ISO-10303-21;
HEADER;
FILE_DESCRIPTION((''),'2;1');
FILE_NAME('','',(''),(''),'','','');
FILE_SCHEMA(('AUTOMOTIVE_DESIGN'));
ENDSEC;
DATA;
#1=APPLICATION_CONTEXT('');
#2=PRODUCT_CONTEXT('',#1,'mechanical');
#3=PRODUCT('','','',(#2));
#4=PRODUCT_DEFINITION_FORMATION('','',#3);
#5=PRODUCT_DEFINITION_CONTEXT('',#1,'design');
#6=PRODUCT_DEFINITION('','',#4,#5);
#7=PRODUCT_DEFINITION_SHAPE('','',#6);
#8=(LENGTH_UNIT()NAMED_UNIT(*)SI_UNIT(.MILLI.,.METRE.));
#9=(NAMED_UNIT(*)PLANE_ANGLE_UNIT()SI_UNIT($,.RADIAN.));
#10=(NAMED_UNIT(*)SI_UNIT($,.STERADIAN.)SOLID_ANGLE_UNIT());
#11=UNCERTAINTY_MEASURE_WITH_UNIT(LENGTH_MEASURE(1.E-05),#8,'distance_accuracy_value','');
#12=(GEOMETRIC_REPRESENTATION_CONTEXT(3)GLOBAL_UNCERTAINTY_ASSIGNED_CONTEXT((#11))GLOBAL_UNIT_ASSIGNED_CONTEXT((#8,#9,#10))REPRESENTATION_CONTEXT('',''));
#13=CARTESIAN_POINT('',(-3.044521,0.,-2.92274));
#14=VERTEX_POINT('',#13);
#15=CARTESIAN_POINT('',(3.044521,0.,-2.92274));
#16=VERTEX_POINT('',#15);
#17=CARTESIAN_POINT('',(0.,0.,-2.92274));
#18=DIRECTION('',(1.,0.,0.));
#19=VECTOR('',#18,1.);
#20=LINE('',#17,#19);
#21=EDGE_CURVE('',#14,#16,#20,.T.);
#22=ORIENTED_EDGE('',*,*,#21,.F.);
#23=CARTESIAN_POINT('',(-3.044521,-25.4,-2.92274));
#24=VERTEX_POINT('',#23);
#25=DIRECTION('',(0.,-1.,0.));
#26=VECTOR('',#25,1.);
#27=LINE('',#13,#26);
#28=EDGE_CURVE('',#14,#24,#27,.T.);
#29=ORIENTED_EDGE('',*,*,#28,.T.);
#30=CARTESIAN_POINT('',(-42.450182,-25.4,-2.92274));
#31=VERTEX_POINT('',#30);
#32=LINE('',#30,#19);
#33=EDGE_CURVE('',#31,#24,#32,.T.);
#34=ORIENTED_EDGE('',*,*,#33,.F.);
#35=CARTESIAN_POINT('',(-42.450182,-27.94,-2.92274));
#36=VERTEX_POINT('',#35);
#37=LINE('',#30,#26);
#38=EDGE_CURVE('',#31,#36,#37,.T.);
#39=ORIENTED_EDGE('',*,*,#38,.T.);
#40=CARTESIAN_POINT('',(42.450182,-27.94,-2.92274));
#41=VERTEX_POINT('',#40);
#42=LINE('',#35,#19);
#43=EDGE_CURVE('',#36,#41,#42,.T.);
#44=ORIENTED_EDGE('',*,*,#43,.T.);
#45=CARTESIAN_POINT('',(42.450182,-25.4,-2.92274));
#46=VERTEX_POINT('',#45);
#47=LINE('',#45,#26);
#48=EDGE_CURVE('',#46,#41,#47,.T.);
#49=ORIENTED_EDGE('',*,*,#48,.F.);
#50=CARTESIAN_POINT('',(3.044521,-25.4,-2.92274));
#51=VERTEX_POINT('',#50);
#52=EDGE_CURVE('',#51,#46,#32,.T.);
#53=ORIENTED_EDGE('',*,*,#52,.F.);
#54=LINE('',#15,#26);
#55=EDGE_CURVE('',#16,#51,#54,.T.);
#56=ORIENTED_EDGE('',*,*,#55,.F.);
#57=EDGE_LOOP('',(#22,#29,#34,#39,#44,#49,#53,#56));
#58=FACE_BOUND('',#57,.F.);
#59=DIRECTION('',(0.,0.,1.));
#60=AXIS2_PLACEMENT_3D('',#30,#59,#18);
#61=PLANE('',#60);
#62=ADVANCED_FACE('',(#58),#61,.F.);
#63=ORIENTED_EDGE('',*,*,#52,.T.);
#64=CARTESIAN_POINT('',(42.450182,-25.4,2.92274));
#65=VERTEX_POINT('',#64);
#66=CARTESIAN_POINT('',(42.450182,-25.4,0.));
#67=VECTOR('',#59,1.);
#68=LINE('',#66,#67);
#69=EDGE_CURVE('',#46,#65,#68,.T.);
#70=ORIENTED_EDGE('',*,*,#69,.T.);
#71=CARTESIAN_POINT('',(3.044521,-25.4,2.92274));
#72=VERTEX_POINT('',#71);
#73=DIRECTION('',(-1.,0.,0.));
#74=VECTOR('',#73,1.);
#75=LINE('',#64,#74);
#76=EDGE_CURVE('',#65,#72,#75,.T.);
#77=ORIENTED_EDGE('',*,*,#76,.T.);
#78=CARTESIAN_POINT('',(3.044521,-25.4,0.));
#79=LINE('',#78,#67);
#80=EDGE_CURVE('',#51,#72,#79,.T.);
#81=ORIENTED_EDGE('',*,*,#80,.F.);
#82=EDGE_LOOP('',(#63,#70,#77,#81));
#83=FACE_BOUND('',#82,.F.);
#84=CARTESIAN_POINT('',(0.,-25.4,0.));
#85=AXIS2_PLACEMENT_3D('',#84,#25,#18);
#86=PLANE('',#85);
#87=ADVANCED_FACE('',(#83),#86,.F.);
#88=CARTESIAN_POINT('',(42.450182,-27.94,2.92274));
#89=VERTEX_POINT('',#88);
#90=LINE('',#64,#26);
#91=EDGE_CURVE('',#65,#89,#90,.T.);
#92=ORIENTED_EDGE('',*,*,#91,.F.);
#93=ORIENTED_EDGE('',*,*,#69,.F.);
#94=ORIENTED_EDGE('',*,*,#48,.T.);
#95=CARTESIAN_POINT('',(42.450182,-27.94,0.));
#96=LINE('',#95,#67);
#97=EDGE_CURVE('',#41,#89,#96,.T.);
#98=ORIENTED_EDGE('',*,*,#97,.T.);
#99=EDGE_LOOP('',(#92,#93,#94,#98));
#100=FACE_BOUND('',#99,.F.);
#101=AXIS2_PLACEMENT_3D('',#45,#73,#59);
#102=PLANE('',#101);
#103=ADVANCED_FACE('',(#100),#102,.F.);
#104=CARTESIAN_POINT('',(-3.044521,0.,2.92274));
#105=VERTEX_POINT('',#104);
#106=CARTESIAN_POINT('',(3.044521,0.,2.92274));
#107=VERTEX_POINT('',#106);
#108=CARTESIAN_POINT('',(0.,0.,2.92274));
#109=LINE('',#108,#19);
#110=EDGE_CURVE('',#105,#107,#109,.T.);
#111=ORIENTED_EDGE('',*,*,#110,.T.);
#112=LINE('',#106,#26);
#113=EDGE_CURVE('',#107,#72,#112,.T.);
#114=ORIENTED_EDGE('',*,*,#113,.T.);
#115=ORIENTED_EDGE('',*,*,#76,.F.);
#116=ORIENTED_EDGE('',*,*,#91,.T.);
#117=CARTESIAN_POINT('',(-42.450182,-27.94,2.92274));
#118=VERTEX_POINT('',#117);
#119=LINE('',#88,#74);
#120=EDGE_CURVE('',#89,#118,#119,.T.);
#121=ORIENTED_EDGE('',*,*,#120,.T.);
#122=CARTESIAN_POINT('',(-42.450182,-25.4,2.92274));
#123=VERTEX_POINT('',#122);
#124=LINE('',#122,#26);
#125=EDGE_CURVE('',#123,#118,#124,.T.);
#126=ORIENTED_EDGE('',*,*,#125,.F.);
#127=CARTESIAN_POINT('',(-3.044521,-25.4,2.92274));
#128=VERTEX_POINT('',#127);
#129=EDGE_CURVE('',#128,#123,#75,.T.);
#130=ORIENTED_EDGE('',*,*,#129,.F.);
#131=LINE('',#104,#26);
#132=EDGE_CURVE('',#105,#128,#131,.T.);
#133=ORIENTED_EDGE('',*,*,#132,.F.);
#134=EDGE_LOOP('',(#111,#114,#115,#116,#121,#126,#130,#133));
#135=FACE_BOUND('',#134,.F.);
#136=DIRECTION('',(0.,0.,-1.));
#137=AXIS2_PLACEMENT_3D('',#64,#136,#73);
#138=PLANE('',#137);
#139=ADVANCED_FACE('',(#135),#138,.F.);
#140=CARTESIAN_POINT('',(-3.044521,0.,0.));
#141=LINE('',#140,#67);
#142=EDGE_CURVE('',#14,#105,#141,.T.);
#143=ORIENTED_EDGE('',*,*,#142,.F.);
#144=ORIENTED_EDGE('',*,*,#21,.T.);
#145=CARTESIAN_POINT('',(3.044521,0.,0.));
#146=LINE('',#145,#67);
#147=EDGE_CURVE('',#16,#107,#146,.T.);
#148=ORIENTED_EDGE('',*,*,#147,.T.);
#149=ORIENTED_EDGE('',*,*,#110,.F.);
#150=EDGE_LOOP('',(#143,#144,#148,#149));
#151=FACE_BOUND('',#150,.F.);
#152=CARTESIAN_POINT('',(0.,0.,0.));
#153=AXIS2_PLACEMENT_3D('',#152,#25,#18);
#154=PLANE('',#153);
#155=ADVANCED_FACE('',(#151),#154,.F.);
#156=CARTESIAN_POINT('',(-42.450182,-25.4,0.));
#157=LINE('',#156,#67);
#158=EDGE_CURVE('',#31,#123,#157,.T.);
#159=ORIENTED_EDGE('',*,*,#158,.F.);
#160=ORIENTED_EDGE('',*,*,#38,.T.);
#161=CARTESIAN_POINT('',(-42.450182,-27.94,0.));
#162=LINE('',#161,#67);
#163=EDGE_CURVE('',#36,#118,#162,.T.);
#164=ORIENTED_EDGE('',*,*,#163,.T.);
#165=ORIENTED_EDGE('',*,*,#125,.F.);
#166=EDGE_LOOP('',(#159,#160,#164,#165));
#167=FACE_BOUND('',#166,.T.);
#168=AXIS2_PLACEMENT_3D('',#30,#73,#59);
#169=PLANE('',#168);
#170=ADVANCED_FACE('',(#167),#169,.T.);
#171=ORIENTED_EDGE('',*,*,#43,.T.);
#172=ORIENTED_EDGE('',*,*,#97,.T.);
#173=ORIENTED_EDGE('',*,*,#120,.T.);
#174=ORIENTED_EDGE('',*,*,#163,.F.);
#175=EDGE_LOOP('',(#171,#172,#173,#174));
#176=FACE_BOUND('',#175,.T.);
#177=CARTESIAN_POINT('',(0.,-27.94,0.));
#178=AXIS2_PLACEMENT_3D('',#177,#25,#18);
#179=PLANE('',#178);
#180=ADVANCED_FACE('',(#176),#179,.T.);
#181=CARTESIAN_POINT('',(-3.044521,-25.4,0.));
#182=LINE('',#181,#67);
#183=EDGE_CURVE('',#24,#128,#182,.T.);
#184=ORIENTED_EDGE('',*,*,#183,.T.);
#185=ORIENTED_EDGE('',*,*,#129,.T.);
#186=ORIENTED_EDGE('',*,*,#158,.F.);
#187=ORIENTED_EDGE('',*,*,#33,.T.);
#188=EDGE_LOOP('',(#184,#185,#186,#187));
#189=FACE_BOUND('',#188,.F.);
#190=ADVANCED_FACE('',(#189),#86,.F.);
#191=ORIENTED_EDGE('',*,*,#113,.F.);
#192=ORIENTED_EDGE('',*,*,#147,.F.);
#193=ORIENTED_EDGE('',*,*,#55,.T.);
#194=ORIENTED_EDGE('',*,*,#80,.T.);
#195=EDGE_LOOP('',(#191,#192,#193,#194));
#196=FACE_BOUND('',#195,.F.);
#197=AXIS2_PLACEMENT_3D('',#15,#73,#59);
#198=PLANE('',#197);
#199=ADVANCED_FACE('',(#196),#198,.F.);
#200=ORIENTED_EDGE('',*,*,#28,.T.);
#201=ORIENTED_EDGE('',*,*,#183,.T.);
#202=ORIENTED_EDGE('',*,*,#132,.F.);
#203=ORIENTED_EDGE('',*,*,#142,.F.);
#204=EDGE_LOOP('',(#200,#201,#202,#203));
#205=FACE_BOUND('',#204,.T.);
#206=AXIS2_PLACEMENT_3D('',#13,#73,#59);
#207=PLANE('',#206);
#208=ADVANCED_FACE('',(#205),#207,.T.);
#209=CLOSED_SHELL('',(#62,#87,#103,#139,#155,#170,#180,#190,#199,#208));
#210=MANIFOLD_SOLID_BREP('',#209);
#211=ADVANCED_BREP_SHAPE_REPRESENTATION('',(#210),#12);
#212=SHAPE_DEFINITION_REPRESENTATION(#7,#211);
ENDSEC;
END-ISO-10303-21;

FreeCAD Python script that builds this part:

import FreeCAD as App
import Part
import Sketcher

V = App.Vector
Q = App.Units.Quantity

doc = App.newDocument("Part")
body = doc.addObject("PartDesign::Body", "Body")

# Sketch on XZ plane
sketch1 = body.newObject("Sketcher::SketchObject", "Sketch")
sketch1.AttachmentSupport = (doc.getObject("XZ_Plane"), [""])
sketch1.MapMode = "FlatFace"
sketch1.addGeometry(Part.LineSegment(V(-3, 3, 0), V(-3, -3, 0)), False)
sketch1.addGeometry(Part.LineSegment(V(-3, -3, 0), V(3, -3, 0)), False)
sketch1.addGeometry(Part.LineSegment(V(3, -3, 0), V(3, 3, 0)), False)
sketch1.addGeometry(Part.LineSegment(V(3, 3, 0), V(-3, 3, 0)), False)
sketch1.addConstraint(Sketcher.Constraint("Coincident", 0, 2, 1, 1))
sketch1.addConstraint(Sketcher.Constraint("Coincident", 1, 2, 2, 1))
sketch1.addConstraint(Sketcher.Constraint("Coincident", 2, 2, 3, 1))
sketch1.addConstraint(Sketcher.Constraint("Coincident", 3, 2, 0, 1))
sketch1.addConstraint(Sketcher.Constraint("Vertical", 0))
sketch1.addConstraint(Sketcher.Constraint("Horizontal", 1))
sketch1.addConstraint(Sketcher.Constraint("Vertical", 2))
sketch1.addConstraint(Sketcher.Constraint("Horizontal", 3))
sketch1.addConstraint(Sketcher.Constraint("Symmetric", 0, 2, 2, 2, -1, 1))
sketch1.addConstraint(Sketcher.Constraint("DistanceX", 1, 1, 1, 2, Q("6.089041 mm")))
sketch1.addConstraint(Sketcher.Constraint("DistanceY", 0, 2, 0, 1, Q("5.845479 mm")))
pad1 = body.newObject("PartDesign::Pad", "Pad")
pad1.Profile = sketch1
pad1.Length = Q("1 in")

# Sketch on XZ plane
sketch2 = body.newObject("Sketcher::SketchObject", "Sketch001")
sketch2.AttachmentSupport = (doc.getObject("XZ_Plane"), [""])
sketch2.MapMode = "FlatFace"
sketch2.AttachmentOffset = App.Placement(V(0, 0, 1 * 25.4), App.Rotation())
sketch2.addGeometry(Part.LineSegment(V(42, -3, 0), V(42, 3, 0)), False)
sketch2.addGeometry(Part.LineSegment(V(42, 3, 0), V(-42, 3, 0)), False)
sketch2.addGeometry(Part.LineSegment(V(-42, 3, 0), V(-42, -3, 0)), False)
sketch2.addGeometry(Part.LineSegment(V(-42, -3, 0), V(42, -3, 0)), False)
sketch2.addConstraint(Sketcher.Constraint("Coincident", 0, 2, 1, 1))
sketch2.addConstraint(Sketcher.Constraint("Coincident", 1, 2, 2, 1))
sketch2.addConstraint(Sketcher.Constraint("Coincident", 2, 2, 3, 1))
sketch2.addConstraint(Sketcher.Constraint("Coincident", 3, 2, 0, 1))
sketch2.addConstraint(Sketcher.Constraint("Vertical", 0))
sketch2.addConstraint(Sketcher.Constraint("Horizontal", 1))
sketch2.addConstraint(Sketcher.Constraint("Vertical", 2))
sketch2.addConstraint(Sketcher.Constraint("Horizontal", 3))
sketch2.addConstraint(Sketcher.Constraint("Symmetric", 0, 2, 2, 2, -1, 1))
sketch2.addConstraint(Sketcher.Constraint("DistanceY", 0, 1, 0, 2, Q("5.845479 mm")))
sketch2.addConstraint(Sketcher.Constraint("DistanceX", 1, 2, 1, 1, Q("84.900364 mm")))
pad2 = body.newObject("PartDesign::Pad", "Pad001")
pad2.Profile = sketch2
pad2.Length = Q("0.1 in")

doc.recompute()
